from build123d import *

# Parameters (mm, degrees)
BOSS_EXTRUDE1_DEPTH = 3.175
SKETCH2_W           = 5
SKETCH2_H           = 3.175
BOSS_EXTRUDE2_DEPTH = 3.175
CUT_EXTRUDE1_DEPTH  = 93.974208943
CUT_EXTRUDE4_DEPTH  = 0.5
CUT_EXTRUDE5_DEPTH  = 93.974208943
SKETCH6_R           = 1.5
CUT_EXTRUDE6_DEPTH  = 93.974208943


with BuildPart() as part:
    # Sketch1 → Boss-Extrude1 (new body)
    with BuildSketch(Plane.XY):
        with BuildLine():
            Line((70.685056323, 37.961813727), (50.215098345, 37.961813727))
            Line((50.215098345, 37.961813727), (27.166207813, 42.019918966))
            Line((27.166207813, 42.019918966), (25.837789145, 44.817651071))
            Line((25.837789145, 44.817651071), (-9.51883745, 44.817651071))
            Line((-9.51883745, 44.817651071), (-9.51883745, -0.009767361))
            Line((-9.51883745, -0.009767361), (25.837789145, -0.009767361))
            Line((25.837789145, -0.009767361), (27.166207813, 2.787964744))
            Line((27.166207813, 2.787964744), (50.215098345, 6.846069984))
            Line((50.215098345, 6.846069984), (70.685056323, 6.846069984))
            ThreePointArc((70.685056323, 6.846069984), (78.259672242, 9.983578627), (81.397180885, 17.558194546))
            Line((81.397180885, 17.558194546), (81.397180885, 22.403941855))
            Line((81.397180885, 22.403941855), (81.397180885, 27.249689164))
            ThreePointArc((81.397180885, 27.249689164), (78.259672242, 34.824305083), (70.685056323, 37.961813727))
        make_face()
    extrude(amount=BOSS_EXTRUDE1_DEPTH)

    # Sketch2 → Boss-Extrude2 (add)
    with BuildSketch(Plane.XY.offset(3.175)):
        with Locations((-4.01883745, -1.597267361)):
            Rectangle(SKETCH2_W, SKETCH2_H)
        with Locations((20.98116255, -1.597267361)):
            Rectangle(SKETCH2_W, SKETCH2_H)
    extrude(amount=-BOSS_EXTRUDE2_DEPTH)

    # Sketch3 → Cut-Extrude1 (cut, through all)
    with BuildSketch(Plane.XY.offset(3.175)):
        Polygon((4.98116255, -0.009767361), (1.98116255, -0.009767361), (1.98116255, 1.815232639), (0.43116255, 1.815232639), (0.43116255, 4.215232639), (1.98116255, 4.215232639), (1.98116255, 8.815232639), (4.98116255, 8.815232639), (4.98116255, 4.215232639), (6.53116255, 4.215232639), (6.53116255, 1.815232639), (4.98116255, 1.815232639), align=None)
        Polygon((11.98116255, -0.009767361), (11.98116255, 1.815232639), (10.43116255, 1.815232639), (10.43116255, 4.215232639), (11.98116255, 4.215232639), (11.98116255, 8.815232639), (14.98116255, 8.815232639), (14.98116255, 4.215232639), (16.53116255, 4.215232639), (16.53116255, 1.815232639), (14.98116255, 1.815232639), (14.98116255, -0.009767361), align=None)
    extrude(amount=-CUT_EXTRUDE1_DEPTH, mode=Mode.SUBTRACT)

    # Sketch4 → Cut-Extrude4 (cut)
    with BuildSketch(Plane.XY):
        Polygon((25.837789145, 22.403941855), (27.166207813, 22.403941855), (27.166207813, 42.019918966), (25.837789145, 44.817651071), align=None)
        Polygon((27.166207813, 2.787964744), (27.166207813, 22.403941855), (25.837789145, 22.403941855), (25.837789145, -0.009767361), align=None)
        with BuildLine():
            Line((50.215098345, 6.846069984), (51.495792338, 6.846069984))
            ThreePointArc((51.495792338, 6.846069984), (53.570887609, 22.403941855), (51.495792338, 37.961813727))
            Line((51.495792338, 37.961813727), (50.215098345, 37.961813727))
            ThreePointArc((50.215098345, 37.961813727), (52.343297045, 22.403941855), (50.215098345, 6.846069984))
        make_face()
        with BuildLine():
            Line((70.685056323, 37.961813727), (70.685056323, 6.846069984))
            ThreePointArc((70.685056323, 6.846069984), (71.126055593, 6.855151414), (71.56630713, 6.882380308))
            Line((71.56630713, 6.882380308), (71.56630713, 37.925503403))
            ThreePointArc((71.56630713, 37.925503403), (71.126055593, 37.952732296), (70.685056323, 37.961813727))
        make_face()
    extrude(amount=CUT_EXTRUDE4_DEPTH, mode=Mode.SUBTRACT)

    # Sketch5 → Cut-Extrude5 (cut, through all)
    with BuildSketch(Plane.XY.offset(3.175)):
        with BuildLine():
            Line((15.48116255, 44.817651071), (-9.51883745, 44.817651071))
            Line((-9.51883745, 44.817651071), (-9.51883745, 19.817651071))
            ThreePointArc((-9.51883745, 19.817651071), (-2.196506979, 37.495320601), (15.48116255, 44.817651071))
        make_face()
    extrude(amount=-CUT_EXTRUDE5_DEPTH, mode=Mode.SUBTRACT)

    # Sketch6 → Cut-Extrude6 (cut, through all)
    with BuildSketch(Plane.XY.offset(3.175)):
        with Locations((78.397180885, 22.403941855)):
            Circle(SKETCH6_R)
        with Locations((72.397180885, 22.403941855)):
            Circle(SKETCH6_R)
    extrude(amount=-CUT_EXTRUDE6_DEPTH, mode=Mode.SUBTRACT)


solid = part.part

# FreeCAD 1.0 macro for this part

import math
import FreeCAD as App
import Part
import Sketcher
from FreeCAD import Vector

doc = App.newDocument("Part")
body = doc.addObject("PartDesign::Body", "Body")

sketch1 = doc.addObject("Sketcher::SketchObject", "Sketch")
body.addObject(sketch1)
sketch1.AttachmentSupport = (doc.XY_Plane, [""])
sketch1.MapMode = "FlatFace"
sketch1.addGeometry(Part.LineSegment(Vector(70.685056, 37.961814, 0), Vector(50.215098, 37.961814, 0)), False)
sketch1.addGeometry(Part.LineSegment(Vector(50.215098, 37.961814, 0), Vector(27.166208, 42.019919, 0)), False)
sketch1.addGeometry(Part.LineSegment(Vector(27.166208, 42.019919, 0), Vector(25.837789, 44.817651, 0)), False)
sketch1.addGeometry(Part.LineSegment(Vector(25.837789, 44.817651, 0), Vector(-9.518837, 44.817651, 0)), False)
sketch1.addGeometry(Part.LineSegment(Vector(-9.518837, 44.817651, 0), Vector(-9.518837, -0.009767, 0)), False)
sketch1.addGeometry(Part.LineSegment(Vector(-9.518837, -0.009767, 0), Vector(25.837789, -0.009767, 0)), False)
sketch1.addGeometry(Part.LineSegment(Vector(25.837789, -0.009767, 0), Vector(27.166208, 2.787965, 0)), False)
sketch1.addGeometry(Part.LineSegment(Vector(27.166208, 2.787965, 0), Vector(50.215098, 6.84607, 0)), False)
sketch1.addGeometry(Part.LineSegment(Vector(50.215098, 6.84607, 0), Vector(70.685056, 6.84607, 0)), False)
sketch1.addGeometry(Part.ArcOfCircle(Part.Circle(Vector(70.685056, 17.558195, 0), Vector(0, 0, 1), 10.712125), math.radians(-90), math.radians(0)), False)
sketch1.addGeometry(Part.LineSegment(Vector(81.397181, 17.558195, 0), Vector(81.397181, 27.249689, 0)), False)
sketch1.addGeometry(Part.ArcOfCircle(Part.Circle(Vector(70.685056, 27.249689, 0), Vector(0, 0, 1), 10.712125), math.radians(0), math.radians(90)), False)
sketch1.addConstraint(Sketcher.Constraint("Coincident", 0, 2, 1, 1))
sketch1.addConstraint(Sketcher.Constraint("Coincident", 1, 2, 2, 1))
sketch1.addConstraint(Sketcher.Constraint("Coincident", 2, 2, 3, 1))
sketch1.addConstraint(Sketcher.Constraint("Coincident", 3, 2, 4, 1))
sketch1.addConstraint(Sketcher.Constraint("Coincident", 4, 2, 5, 1))
sketch1.addConstraint(Sketcher.Constraint("Coincident", 5, 2, 6, 1))
sketch1.addConstraint(Sketcher.Constraint("Coincident", 6, 2, 7, 1))
sketch1.addConstraint(Sketcher.Constraint("Coincident", 7, 2, 8, 1))
sketch1.addConstraint(Sketcher.Constraint("Tangent", 8, 2, 9, 1))
sketch1.addConstraint(Sketcher.Constraint("Tangent", 9, 2, 10, 1))
sketch1.addConstraint(Sketcher.Constraint("Tangent", 10, 2, 11, 1))
sketch1.addConstraint(Sketcher.Constraint("Tangent", 11, 2, 0, 1))
sketch1.addConstraint(Sketcher.Constraint("Horizontal", 0))
sketch1.addConstraint(Sketcher.Constraint("Horizontal", 3))
sketch1.addConstraint(Sketcher.Constraint("Vertical", 4))
sketch1.addConstraint(Sketcher.Constraint("Horizontal", 5))
sketch1.addConstraint(Sketcher.Constraint("Horizontal", 8))
sketch1.addConstraint(Sketcher.Constraint("Vertical", 10))
sketch1.addConstraint(Sketcher.Constraint("Equal", 9, 11))
sketch1.addConstraint(Sketcher.Constraint("Vertical", 2, 2, 5, 2))
sketch1.addConstraint(Sketcher.Constraint("Vertical", 1, 2, 6, 2))
sketch1.addConstraint(Sketcher.Constraint("Vertical", 0, 2, 7, 2))
sketch1.addConstraint(Sketcher.Constraint("Equal", 2, 6))
sketch1.addConstraint(Sketcher.Constraint("Equal", 1, 7))
sketch1.addConstraint(Sketcher.Constraint("Radius", 9, 10.712125))
sketch1.addConstraint(Sketcher.Constraint("DistanceY", 4, 2, 4, 1, 44.827418))
sketch1.addConstraint(Sketcher.Constraint("DistanceX", -1, 1, 0, 2, 50.215098))
sketch1.addConstraint(Sketcher.Constraint("Distance", 1, 23.403409))
sketch1.addConstraint(Sketcher.Constraint("DistanceX", 0, 2, 0, 1, 20.469958))
sketch1.addConstraint(Sketcher.Constraint("DistanceX", 3, 2, 3, 1, 35.356627))
sketch1.addConstraint(Sketcher.Constraint("DistanceY", 10, 1, 10, 2, 9.691495))
sketch1.addConstraint(Sketcher.Constraint("DistanceY", -1, 1, 11, 3, 27.249689))
sketch1.addConstraint(Sketcher.Constraint("DistanceY", -1, 1, 1, 2, 42.019919))
sketch1.addConstraint(Sketcher.Constraint("DistanceX", -1, 1, 2, 2, 25.837789))
pad1 = doc.addObject("PartDesign::Pad", "Pad")
body.addObject(pad1)
pad1.Profile = sketch1
pad1.Length = 3.175

sketch2 = doc.addObject("Sketcher::SketchObject", "Sketch001")
body.addObject(sketch2)
sketch2.AttachmentSupport = (doc.XY_Plane, [""])
sketch2.MapMode = "FlatFace"
sketch2.AttachmentOffset = App.Placement(Vector(0, 0, 3.175), App.Rotation())
sketch2.addGeometry(Part.LineSegment(Vector(-6.518837, -0.009767, 0), Vector(-6.518837, -3.184767, 0)), False)
sketch2.addGeometry(Part.LineSegment(Vector(-6.518837, -3.184767, 0), Vector(-1.518837, -3.184767, 0)), False)
sketch2.addGeometry(Part.LineSegment(Vector(-1.518837, -3.184767, 0), Vector(-1.518837, -0.009767, 0)), False)
sketch2.addGeometry(Part.LineSegment(Vector(-1.518837, -0.009767, 0), Vector(-6.518837, -0.009767, 0)), False)
sketch2.addGeometry(Part.LineSegment(Vector(18.481163, -0.009767, 0), Vector(18.481163, -3.184767, 0)), False)
sketch2.addGeometry(Part.LineSegment(Vector(18.481163, -3.184767, 0), Vector(23.481163, -3.184767, 0)), False)
sketch2.addGeometry(Part.LineSegment(Vector(23.481163, -3.184767, 0), Vector(23.481163, -0.009767, 0)), False)
sketch2.addGeometry(Part.LineSegment(Vector(23.481163, -0.009767, 0), Vector(18.481163, -0.009767, 0)), False)
sketch2.addConstraint(Sketcher.Constraint("Coincident", 0, 2, 1, 1))
sketch2.addConstraint(Sketcher.Constraint("Coincident", 1, 2, 2, 1))
sketch2.addConstraint(Sketcher.Constraint("Coincident", 2, 2, 3, 1))
sketch2.addConstraint(Sketcher.Constraint("Coincident", 3, 2, 0, 1))
sketch2.addConstraint(Sketcher.Constraint("Coincident", 4, 2, 5, 1))
sketch2.addConstraint(Sketcher.Constraint("Coincident", 5, 2, 6, 1))
sketch2.addConstraint(Sketcher.Constraint("Coincident", 6, 2, 7, 1))
sketch2.addConstraint(Sketcher.Constraint("Coincident", 7, 2, 4, 1))
sketch2.addConstraint(Sketcher.Constraint("Vertical", 0))
sketch2.addConstraint(Sketcher.Constraint("Horizontal", 1))
sketch2.addConstraint(Sketcher.Constraint("Vertical", 2))
sketch2.addConstraint(Sketcher.Constraint("Horizontal", 3))
sketch2.addConstraint(Sketcher.Constraint("Vertical", 4))
sketch2.addConstraint(Sketcher.Constraint("Horizontal", 5))
sketch2.addConstraint(Sketcher.Constraint("Vertical", 6))
sketch2.addConstraint(Sketcher.Constraint("Horizontal", 7))
sketch2.addConstraint(Sketcher.Constraint("Horizontal", 1, 2, 4, 2))
sketch2.addConstraint(Sketcher.Constraint("Horizontal", 3, 2, 6, 2))
sketch2.addConstraint(Sketcher.Constraint("Equal", 3, 5))
sketch2.addConstraint(Sketcher.Constraint("DistanceX", 1, 1, 1, 2, 5.0))
sketch2.addConstraint(Sketcher.Constraint("DistanceX", 1, 2, 4, 2, 20.0))
sketch2.addConstraint(Sketcher.Constraint("DistanceY", 0, 2, 0, 1, 3.175))
sketch2.addConstraint(Sketcher.Constraint("DistanceX", 0, 2, -1, 1, 6.518837))
sketch2.addConstraint(Sketcher.Constraint("DistanceY", 0, 2, -1, 1, 3.184767))
pad2 = doc.addObject("PartDesign::Pad", "Pad001")
body.addObject(pad2)
pad2.Profile = sketch2
pad2.Length = 3.175
pad2.Reversed = True

sketch3 = doc.addObject("Sketcher::SketchObject", "Sketch002")
body.addObject(sketch3)
sketch3.AttachmentSupport = (doc.XY_Plane, [""])
sketch3.MapMode = "FlatFace"
sketch3.AttachmentOffset = App.Placement(Vector(0, 0, 3.175), App.Rotation())
sketch3.addGeometry(Part.LineSegment(Vector(1.981163, -0.009767, 0), Vector(4.981163, -0.009767, 0)), False)
sketch3.addGeometry(Part.LineSegment(Vector(4.981163, -0.009767, 0), Vector(4.981163, 1.815233, 0)), False)
sketch3.addGeometry(Part.LineSegment(Vector(4.981163, 1.815233, 0), Vector(6.531163, 1.815233, 0)), False)
sketch3.addGeometry(Part.LineSegment(Vector(6.531163, 1.815233, 0), Vector(6.531163, 4.215233, 0)), False)
sketch3.addGeometry(Part.LineSegment(Vector(6.531163, 4.215233, 0), Vector(4.981163, 4.215233, 0)), False)
sketch3.addGeometry(Part.LineSegment(Vector(4.981163, 4.215233, 0), Vector(4.981163, 8.815233, 0)), False)
sketch3.addGeometry(Part.LineSegment(Vector(4.981163, 8.815233, 0), Vector(1.981163, 8.815233, 0)), False)
sketch3.addGeometry(Part.LineSegment(Vector(1.981163, 8.815233, 0), Vector(1.981163, 4.215233, 0)), False)
sketch3.addGeometry(Part.LineSegment(Vector(1.981163, 4.215233, 0), Vector(0.431163, 4.215233, 0)), False)
sketch3.addGeometry(Part.LineSegment(Vector(0.431163, 4.215233, 0), Vector(0.431163, 1.815233, 0)), False)
sketch3.addGeometry(Part.LineSegment(Vector(0.431163, 1.815233, 0), Vector(1.981163, 1.815233, 0)), False)
sketch3.addGeometry(Part.LineSegment(Vector(1.981163, 1.815233, 0), Vector(1.981163, -0.009767, 0)), False)
sketch3.addGeometry(Part.LineSegment(Vector(11.981163, 1.815233, 0), Vector(11.981163, -0.009767, 0)), False)
sketch3.addGeometry(Part.LineSegment(Vector(11.981163, -0.009767, 0), Vector(14.981163, -0.009767, 0)), False)
sketch3.addGeometry(Part.LineSegment(Vector(14.981163, -0.009767, 0), Vector(14.981163, 1.815233, 0)), False)
sketch3.addGeometry(Part.LineSegment(Vector(14.981163, 1.815233, 0), Vector(16.531163, 1.815233, 0)), False)
sketch3.addGeometry(Part.LineSegment(Vector(16.531163, 1.815233, 0), Vector(16.531163, 4.215233, 0)), False)
sketch3.addGeometry(Part.LineSegment(Vector(16.531163, 4.215233, 0), Vector(14.981163, 4.215233, 0)), False)
sketch3.addGeometry(Part.LineSegment(Vector(14.981163, 4.215233, 0), Vector(14.981163, 8.815233, 0)), False)
sketch3.addGeometry(Part.LineSegment(Vector(14.981163, 8.815233, 0), Vector(11.981163, 8.815233, 0)), False)
sketch3.addGeometry(Part.LineSegment(Vector(11.981163, 8.815233, 0), Vector(11.981163, 4.215233, 0)), False)
sketch3.addGeometry(Part.LineSegment(Vector(11.981163, 4.215233, 0), Vector(10.431163, 4.215233, 0)), False)
sketch3.addGeometry(Part.LineSegment(Vector(10.431163, 4.215233, 0), Vector(10.431163, 1.815233, 0)), False)
sketch3.addGeometry(Part.LineSegment(Vector(10.431163, 1.815233, 0), Vector(11.981163, 1.815233, 0)), False)
sketch3.addConstraint(Sketcher.Constraint("Coincident", 0, 2, 1, 1))
sketch3.addConstraint(Sketcher.Constraint("Coincident", 1, 2, 2, 1))
sketch3.addConstraint(Sketcher.Constraint("Coincident", 2, 2, 3, 1))
sketch3.addConstraint(Sketcher.Constraint("Coincident", 3, 2, 4, 1))
sketch3.addConstraint(Sketcher.Constraint("Coincident", 4, 2, 5, 1))
sketch3.addConstraint(Sketcher.Constraint("Coincident", 5, 2, 6, 1))
sketch3.addConstraint(Sketcher.Constraint("Coincident", 6, 2, 7, 1))
sketch3.addConstraint(Sketcher.Constraint("Coincident", 7, 2, 8, 1))
sketch3.addConstraint(Sketcher.Constraint("Coincident", 8, 2, 9, 1))
sketch3.addConstraint(Sketcher.Constraint("Coincident", 9, 2, 10, 1))
sketch3.addConstraint(Sketcher.Constraint("Coincident", 10, 2, 11, 1))
sketch3.addConstraint(Sketcher.Constraint("Coincident", 11, 2, 0, 1))
sketch3.addConstraint(Sketcher.Constraint("Coincident", 12, 2, 13, 1))
sketch3.addConstraint(Sketcher.Constraint("Coincident", 13, 2, 14, 1))
sketch3.addConstraint(Sketcher.Constraint("Coincident", 14, 2, 15, 1))
sketch3.addConstraint(Sketcher.Constraint("Coincident", 15, 2, 16, 1))
sketch3.addConstraint(Sketcher.Constraint("Coincident", 16, 2, 17, 1))
sketch3.addConstraint(Sketcher.Constraint("Coincident", 17, 2, 18, 1))
sketch3.addConstraint(Sketcher.Constraint("Coincident", 18, 2, 19, 1))
sketch3.addConstraint(Sketcher.Constraint("Coincident", 19, 2, 20, 1))
sketch3.addConstraint(Sketcher.Constraint("Coincident", 20, 2, 21, 1))
sketch3.addConstraint(Sketcher.Constraint("Coincident", 21, 2, 22, 1))
sketch3.addConstraint(Sketcher.Constraint("Coincident", 22, 2, 23, 1))
sketch3.addConstraint(Sketcher.Constraint("Coincident", 23, 2, 12, 1))
sketch3.addConstraint(Sketcher.Constraint("Horizontal", 0))
sketch3.addConstraint(Sketcher.Constraint("Vertical", 1))
sketch3.addConstraint(Sketcher.Constraint("Horizontal", 2))
sketch3.addConstraint(Sketcher.Constraint("Vertical", 3))
sketch3.addConstraint(Sketcher.Constraint("Horizontal", 4))
sketch3.addConstraint(Sketcher.Constraint("Vertical", 5))
sketch3.addConstraint(Sketcher.Constraint("Horizontal", 6))
sketch3.addConstraint(Sketcher.Constraint("Vertical", 7))
sketch3.addConstraint(Sketcher.Constraint("Horizontal", 8))
sketch3.addConstraint(Sketcher.Constraint("Vertical", 9))
sketch3.addConstraint(Sketcher.Constraint("Horizontal", 10))
sketch3.addConstraint(Sketcher.Constraint("Vertical", 11))
sketch3.addConstraint(Sketcher.Constraint("Vertical", 12))
sketch3.addConstraint(Sketcher.Constraint("Horizontal", 13))
sketch3.addConstraint(Sketcher.Constraint("Vertical", 14))
sketch3.addConstraint(Sketcher.Constraint("Horizontal", 15))
sketch3.addConstraint(Sketcher.Constraint("Vertical", 16))
sketch3.addConstraint(Sketcher.Constraint("Horizontal", 17))
sketch3.addConstraint(Sketcher.Constraint("Vertical", 18))
sketch3.addConstraint(Sketcher.Constraint("Horizontal", 19))
sketch3.addConstraint(Sketcher.Constraint("Vertical", 20))
sketch3.addConstraint(Sketcher.Constraint("Horizontal", 21))
sketch3.addConstraint(Sketcher.Constraint("Vertical", 22))
sketch3.addConstraint(Sketcher.Constraint("Horizontal", 23))
sketch3.addConstraint(Sketcher.Constraint("Horizontal", 4, 2, 7, 2))
sketch3.addConstraint(Sketcher.Constraint("Horizontal", 2, 2, 9, 2))
sketch3.addConstraint(Sketcher.Constraint("Horizontal", 11, 2, 12, 2))
sketch3.addConstraint(Sketcher.Constraint("Horizontal", 10, 2, 14, 2))
sketch3.addConstraint(Sketcher.Constraint("Horizontal", 8, 2, 16, 2))
sketch3.addConstraint(Sketcher.Constraint("Horizontal", 6, 2, 18, 2))
sketch3.addConstraint(Sketcher.Constraint("Horizontal", 17, 2, 20, 2))
sketch3.addConstraint(Sketcher.Constraint("Horizontal", 15, 2, 22, 2))
sketch3.addConstraint(Sketcher.Constraint("Vertical", 1, 2, 4, 2))
sketch3.addConstraint(Sketcher.Constraint("Vertical", 7, 2, 10, 2))
sketch3.addConstraint(Sketcher.Constraint("Vertical", 14, 2, 17, 2))
sketch3.addConstraint(Sketcher.Constraint("Vertical", 12, 2, 19, 2))
sketch3.addConstraint(Sketcher.Constraint("Equal", 4, 8))
sketch3.addConstraint(Sketcher.Constraint("Equal", 6, 13))
sketch3.addConstraint(Sketcher.Constraint("Equal", 10, 15))
sketch3.addConstraint(Sketcher.Constraint("Equal", 17, 21))
sketch3.addConstraint(Sketcher.Constraint("DistanceX", 0, 1, 0, 2, 3.0))
sketch3.addConstraint(Sketcher.Constraint("DistanceY", 3, 1, 3, 2, 2.4))
sketch3.addConstraint(Sketcher.Constraint("DistanceY", 5, 1, 5, 2, 4.6))
sketch3.addConstraint(Sketcher.Constraint("DistanceX", 0, 2, 12, 2, 7.0))
sketch3.addConstraint(Sketcher.Constraint("DistanceX", 2, 1, 2, 2, 1.55))
sketch3.addConstraint(Sketcher.Constraint("DistanceY", 1, 1, 1, 2, 1.825))
sketch3.addConstraint(Sketcher.Constraint("DistanceX", -1, 1, 0, 2, 4.981163))
sketch3.addConstraint(Sketcher.Constraint("DistanceY", 0, 2, -1, 1, 0.009767))
pocket1 = doc.addObject("PartDesign::Pocket", "Pocket")
body.addObject(pocket1)
pocket1.Profile = sketch3
pocket1.Type = "ThroughAll"

sketch4 = doc.addObject("Sketcher::SketchObject", "Sketch003")
body.addObject(sketch4)
sketch4.AttachmentSupport = (doc.XY_Plane, [""])
sketch4.MapMode = "FlatFace"
sketch4.addGeometry(Part.LineSegment(Vector(27.166208, 42.019919, 0), Vector(25.837789, 44.817651, 0)), False)
sketch4.addGeometry(Part.LineSegment(Vector(25.837789, 44.817651, 0), Vector(25.837789, -0.009767, 0)), False)
sketch4.addGeometry(Part.LineSegment(Vector(25.837789, -0.009767, 0), Vector(27.166208, 2.787965, 0)), False)
sketch4.addGeometry(Part.LineSegment(Vector(27.166208, 2.787965, 0), Vector(27.166208, 42.019919, 0)), False)
sketch4.addGeometry(Part.LineSegment(Vector(50.215098, 6.84607, 0), Vector(51.495792, 6.84607, 0)), False)
sketch4.addGeometry(Part.ArcOfCircle(Part.Circle(Vector(-5.788651, 22.403942, 0), Vector(0, 0, 1), 59.359539), math.radians(-15.194442), math.radians(15.194442)), False)
sketch4.addGeometry(Part.LineSegment(Vector(51.495792, 37.961814, 0), Vector(50.215098, 37.961814, 0)), False)
sketch4.addGeometry(Part.ArcOfCircle(Part.Circle(Vector(-5.587527, 22.403942, 0), Vector(0, 0, 1), 57.930824), math.radians(-15.578566), math.radians(15.578566)), False)
sketch4.addGeometry(Part.LineSegment(Vector(70.685056, 37.961814, 0), Vector(70.685056, 6.84607, 0)), False)
sketch4.addGeometry(Part.ArcOfCircle(Part.Circle(Vector(70.685056, 17.558194, 0), Vector(0, 0, 1), 10.712124), math.radians(-90), math.radians(-85.281134)), False)
sketch4.addGeometry(Part.LineSegment(Vector(71.566307, 6.88238, 0), Vector(71.566307, 37.925503, 0)), False)
sketch4.addGeometry(Part.ArcOfCircle(Part.Circle(Vector(70.685056, 27.249689, 0), Vector(0, 0, 1), 10.712125), math.radians(85.281134), math.radians(90)), False)
sketch4.addConstraint(Sketcher.Constraint("Coincident", 0, 2, 1, 1))
sketch4.addConstraint(Sketcher.Constraint("Coincident", 1, 2, 2, 1))
sketch4.addConstraint(Sketcher.Constraint("Coincident", 2, 2, 3, 1))
sketch4.addConstraint(Sketcher.Constraint("Coincident", 3, 2, 0, 1))
sketch4.addConstraint(Sketcher.Constraint("Coincident", 4, 2, 5, 1))
sketch4.addConstraint(Sketcher.Constraint("Coincident", 5, 2, 6, 1))
sketch4.addConstraint(Sketcher.Constraint("Coincident", 6, 2, 7, 2))
sketch4.addConstraint(Sketcher.Constraint("Coincident", 7, 1, 4, 1))
sketch4.addConstraint(Sketcher.Constraint("Coincident", 8, 2, 9, 1))
sketch4.addConstraint(Sketcher.Constraint("Coincident", 9, 2, 10, 1))
sketch4.addConstraint(Sketcher.Constraint("Coincident", 10, 2, 11, 1))
sketch4.addConstraint(Sketcher.Constraint("Coincident", 11, 2, 8, 1))
sketch4.addConstraint(Sketcher.Constraint("Vertical", 1))
sketch4.addConstraint(Sketcher.Constraint("Vertical", 3))
sketch4.addConstraint(Sketcher.Constraint("Horizontal", 4))
sketch4.addConstraint(Sketcher.Constraint("Horizontal", 6))
sketch4.addConstraint(Sketcher.Constraint("Vertical", 8))
sketch4.addConstraint(Sketcher.Constraint("Vertical", 10))
sketch4.addConstraint(Sketcher.Constraint("Equal", 9, 11))
sketch4.addConstraint(Sketcher.Constraint("Horizontal", 5, 3, 7, 3))
sketch4.addConstraint(Sketcher.Constraint("Horizontal", 7, 1, 8, 2))
sketch4.addConstraint(Sketcher.Constraint("Horizontal", 6, 2, 11, 2))
sketch4.addConstraint(Sketcher.Constraint("Vertical", 9, 3, 11, 3))
sketch4.addConstraint(Sketcher.Constraint("Vertical", 4, 2, 5, 2))
sketch4.addConstraint(Sketcher.Constraint("Vertical", 11, 3, 8, 2))
sketch4.addConstraint(Sketcher.Constraint("Equal", 0, 2))
sketch4.addConstraint(Sketcher.Constraint("Radius", 5, 59.359539))
sketch4.addConstraint(Sketcher.Constraint("Radius", 7, 57.930824))
sketch4.addConstraint(Sketcher.Constraint("Radius", 9, 10.712124))
sketch4.addConstraint(Sketcher.Constraint("DistanceY", 1, 2, 1, 1, 44.827418))
sketch4.addConstraint(Sketcher.Constraint("DistanceX", -1, 1, 6, 2, 50.215098))
sketch4.addConstraint(Sketcher.Constraint("DistanceX", 4, 1, 4, 2, 1.280694))
sketch4.addConstraint(Sketcher.Constraint("DistanceY", 3, 1, 3, 2, 39.231954))
sketch4.addConstraint(Sketcher.Constraint("DistanceY", 8, 2, 8, 1, 31.115744))
sketch4.addConstraint(Sketcher.Constraint("DistanceY", 10, 1, 10, 2, 31.043123))
sketch4.addConstraint(Sketcher.Constraint("DistanceY", -1, 1, 5, 3, 22.403942))
sketch4.addConstraint(Sketcher.Constraint("DistanceX", -1, 1, 0, 2, 25.837789))
sketch4.addConstraint(Sketcher.Constraint("DistanceY", -1, 1, 0, 2, 44.817651))
sketch4.addConstraint(Sketcher.Constraint("DistanceX", 1, 2, 2, 2, 1.328419))
sketch4.addConstraint(Sketcher.Constraint("DistanceX", 2, 2, 9, 3, 43.518849))
pocket2 = doc.addObject("PartDesign::Pocket", "Pocket001")
body.addObject(pocket2)
pocket2.Profile = sketch4
pocket2.Length = 0.5
pocket2.Reversed = True

sketch5 = doc.addObject("Sketcher::SketchObject", "Sketch004")
body.addObject(sketch5)
sketch5.AttachmentSupport = (doc.XY_Plane, [""])
sketch5.MapMode = "FlatFace"
sketch5.AttachmentOffset = App.Placement(Vector(0, 0, 3.175), App.Rotation())
sketch5.addGeometry(Part.LineSegment(Vector(15.481163, 44.817651, 0), Vector(-9.518837, 44.817651, 0)), False)
sketch5.addGeometry(Part.LineSegment(Vector(-9.518837, 44.817651, 0), Vector(-9.518837, 19.817651, 0)), False)
sketch5.addGeometry(Part.ArcOfCircle(Part.Circle(Vector(15.481163, 19.817651, 0), Vector(0, 0, 1), 25), math.radians(90), math.radians(180)), False)
sketch5.addConstraint(Sketcher.Constraint("Coincident", 0, 2, 1, 1))
sketch5.addConstraint(Sketcher.Constraint("Tangent", 1, 2, 2, 2))
sketch5.addConstraint(Sketcher.Constraint("Tangent", 2, 1, 0, 1))
sketch5.addConstraint(Sketcher.Constraint("Horizontal", 0))
sketch5.addConstraint(Sketcher.Constraint("Vertical", 1))
sketch5.addConstraint(Sketcher.Constraint("Radius", 2, 25.0))
sketch5.addConstraint(Sketcher.Constraint("DistanceY", -1, 1, 2, 3, 19.817651))
sketch5.addConstraint(Sketcher.Constraint("DistanceX", -1, 1, 2, 3, 15.481163))
pocket3 = doc.addObject("PartDesign::Pocket", "Pocket002")
body.addObject(pocket3)
pocket3.Profile = sketch5
pocket3.Type = "ThroughAll"

sketch6 = doc.addObject("Sketcher::SketchObject", "Sketch005")
body.addObject(sketch6)
sketch6.AttachmentSupport = (doc.XY_Plane, [""])
sketch6.MapMode = "FlatFace"
sketch6.AttachmentOffset = App.Placement(Vector(0, 0, 3.175), App.Rotation())
sketch6.addGeometry(Part.Circle(Vector(78.397181, 22.403942, 0), Vector(0, 0, 1), 1.5), False)
sketch6.addGeometry(Part.Circle(Vector(72.397181, 22.403942, 0), Vector(0, 0, 1), 1.5), False)
sketch6.addConstraint(Sketcher.Constraint("Equal", 0, 1))
sketch6.addConstraint(Sketcher.Constraint("Horizontal", 0, 3, 1, 3))
sketch6.addConstraint(Sketcher.Constraint("Diameter", 0, 3.0))
sketch6.addConstraint(Sketcher.Constraint("DistanceX", 1, 3, 0, 3, 6.0))
sketch6.addConstraint(Sketcher.Constraint("DistanceX", -1, 1, 0, 3, 78.397181))
sketch6.addConstraint(Sketcher.Constraint("DistanceY", -1, 1, 0, 3, 22.403942))
pocket4 = doc.addObject("PartDesign::Pocket", "Pocket003")
body.addObject(pocket4)
pocket4.Profile = sketch6
pocket4.Type = "ThroughAll"

doc.recompute()
